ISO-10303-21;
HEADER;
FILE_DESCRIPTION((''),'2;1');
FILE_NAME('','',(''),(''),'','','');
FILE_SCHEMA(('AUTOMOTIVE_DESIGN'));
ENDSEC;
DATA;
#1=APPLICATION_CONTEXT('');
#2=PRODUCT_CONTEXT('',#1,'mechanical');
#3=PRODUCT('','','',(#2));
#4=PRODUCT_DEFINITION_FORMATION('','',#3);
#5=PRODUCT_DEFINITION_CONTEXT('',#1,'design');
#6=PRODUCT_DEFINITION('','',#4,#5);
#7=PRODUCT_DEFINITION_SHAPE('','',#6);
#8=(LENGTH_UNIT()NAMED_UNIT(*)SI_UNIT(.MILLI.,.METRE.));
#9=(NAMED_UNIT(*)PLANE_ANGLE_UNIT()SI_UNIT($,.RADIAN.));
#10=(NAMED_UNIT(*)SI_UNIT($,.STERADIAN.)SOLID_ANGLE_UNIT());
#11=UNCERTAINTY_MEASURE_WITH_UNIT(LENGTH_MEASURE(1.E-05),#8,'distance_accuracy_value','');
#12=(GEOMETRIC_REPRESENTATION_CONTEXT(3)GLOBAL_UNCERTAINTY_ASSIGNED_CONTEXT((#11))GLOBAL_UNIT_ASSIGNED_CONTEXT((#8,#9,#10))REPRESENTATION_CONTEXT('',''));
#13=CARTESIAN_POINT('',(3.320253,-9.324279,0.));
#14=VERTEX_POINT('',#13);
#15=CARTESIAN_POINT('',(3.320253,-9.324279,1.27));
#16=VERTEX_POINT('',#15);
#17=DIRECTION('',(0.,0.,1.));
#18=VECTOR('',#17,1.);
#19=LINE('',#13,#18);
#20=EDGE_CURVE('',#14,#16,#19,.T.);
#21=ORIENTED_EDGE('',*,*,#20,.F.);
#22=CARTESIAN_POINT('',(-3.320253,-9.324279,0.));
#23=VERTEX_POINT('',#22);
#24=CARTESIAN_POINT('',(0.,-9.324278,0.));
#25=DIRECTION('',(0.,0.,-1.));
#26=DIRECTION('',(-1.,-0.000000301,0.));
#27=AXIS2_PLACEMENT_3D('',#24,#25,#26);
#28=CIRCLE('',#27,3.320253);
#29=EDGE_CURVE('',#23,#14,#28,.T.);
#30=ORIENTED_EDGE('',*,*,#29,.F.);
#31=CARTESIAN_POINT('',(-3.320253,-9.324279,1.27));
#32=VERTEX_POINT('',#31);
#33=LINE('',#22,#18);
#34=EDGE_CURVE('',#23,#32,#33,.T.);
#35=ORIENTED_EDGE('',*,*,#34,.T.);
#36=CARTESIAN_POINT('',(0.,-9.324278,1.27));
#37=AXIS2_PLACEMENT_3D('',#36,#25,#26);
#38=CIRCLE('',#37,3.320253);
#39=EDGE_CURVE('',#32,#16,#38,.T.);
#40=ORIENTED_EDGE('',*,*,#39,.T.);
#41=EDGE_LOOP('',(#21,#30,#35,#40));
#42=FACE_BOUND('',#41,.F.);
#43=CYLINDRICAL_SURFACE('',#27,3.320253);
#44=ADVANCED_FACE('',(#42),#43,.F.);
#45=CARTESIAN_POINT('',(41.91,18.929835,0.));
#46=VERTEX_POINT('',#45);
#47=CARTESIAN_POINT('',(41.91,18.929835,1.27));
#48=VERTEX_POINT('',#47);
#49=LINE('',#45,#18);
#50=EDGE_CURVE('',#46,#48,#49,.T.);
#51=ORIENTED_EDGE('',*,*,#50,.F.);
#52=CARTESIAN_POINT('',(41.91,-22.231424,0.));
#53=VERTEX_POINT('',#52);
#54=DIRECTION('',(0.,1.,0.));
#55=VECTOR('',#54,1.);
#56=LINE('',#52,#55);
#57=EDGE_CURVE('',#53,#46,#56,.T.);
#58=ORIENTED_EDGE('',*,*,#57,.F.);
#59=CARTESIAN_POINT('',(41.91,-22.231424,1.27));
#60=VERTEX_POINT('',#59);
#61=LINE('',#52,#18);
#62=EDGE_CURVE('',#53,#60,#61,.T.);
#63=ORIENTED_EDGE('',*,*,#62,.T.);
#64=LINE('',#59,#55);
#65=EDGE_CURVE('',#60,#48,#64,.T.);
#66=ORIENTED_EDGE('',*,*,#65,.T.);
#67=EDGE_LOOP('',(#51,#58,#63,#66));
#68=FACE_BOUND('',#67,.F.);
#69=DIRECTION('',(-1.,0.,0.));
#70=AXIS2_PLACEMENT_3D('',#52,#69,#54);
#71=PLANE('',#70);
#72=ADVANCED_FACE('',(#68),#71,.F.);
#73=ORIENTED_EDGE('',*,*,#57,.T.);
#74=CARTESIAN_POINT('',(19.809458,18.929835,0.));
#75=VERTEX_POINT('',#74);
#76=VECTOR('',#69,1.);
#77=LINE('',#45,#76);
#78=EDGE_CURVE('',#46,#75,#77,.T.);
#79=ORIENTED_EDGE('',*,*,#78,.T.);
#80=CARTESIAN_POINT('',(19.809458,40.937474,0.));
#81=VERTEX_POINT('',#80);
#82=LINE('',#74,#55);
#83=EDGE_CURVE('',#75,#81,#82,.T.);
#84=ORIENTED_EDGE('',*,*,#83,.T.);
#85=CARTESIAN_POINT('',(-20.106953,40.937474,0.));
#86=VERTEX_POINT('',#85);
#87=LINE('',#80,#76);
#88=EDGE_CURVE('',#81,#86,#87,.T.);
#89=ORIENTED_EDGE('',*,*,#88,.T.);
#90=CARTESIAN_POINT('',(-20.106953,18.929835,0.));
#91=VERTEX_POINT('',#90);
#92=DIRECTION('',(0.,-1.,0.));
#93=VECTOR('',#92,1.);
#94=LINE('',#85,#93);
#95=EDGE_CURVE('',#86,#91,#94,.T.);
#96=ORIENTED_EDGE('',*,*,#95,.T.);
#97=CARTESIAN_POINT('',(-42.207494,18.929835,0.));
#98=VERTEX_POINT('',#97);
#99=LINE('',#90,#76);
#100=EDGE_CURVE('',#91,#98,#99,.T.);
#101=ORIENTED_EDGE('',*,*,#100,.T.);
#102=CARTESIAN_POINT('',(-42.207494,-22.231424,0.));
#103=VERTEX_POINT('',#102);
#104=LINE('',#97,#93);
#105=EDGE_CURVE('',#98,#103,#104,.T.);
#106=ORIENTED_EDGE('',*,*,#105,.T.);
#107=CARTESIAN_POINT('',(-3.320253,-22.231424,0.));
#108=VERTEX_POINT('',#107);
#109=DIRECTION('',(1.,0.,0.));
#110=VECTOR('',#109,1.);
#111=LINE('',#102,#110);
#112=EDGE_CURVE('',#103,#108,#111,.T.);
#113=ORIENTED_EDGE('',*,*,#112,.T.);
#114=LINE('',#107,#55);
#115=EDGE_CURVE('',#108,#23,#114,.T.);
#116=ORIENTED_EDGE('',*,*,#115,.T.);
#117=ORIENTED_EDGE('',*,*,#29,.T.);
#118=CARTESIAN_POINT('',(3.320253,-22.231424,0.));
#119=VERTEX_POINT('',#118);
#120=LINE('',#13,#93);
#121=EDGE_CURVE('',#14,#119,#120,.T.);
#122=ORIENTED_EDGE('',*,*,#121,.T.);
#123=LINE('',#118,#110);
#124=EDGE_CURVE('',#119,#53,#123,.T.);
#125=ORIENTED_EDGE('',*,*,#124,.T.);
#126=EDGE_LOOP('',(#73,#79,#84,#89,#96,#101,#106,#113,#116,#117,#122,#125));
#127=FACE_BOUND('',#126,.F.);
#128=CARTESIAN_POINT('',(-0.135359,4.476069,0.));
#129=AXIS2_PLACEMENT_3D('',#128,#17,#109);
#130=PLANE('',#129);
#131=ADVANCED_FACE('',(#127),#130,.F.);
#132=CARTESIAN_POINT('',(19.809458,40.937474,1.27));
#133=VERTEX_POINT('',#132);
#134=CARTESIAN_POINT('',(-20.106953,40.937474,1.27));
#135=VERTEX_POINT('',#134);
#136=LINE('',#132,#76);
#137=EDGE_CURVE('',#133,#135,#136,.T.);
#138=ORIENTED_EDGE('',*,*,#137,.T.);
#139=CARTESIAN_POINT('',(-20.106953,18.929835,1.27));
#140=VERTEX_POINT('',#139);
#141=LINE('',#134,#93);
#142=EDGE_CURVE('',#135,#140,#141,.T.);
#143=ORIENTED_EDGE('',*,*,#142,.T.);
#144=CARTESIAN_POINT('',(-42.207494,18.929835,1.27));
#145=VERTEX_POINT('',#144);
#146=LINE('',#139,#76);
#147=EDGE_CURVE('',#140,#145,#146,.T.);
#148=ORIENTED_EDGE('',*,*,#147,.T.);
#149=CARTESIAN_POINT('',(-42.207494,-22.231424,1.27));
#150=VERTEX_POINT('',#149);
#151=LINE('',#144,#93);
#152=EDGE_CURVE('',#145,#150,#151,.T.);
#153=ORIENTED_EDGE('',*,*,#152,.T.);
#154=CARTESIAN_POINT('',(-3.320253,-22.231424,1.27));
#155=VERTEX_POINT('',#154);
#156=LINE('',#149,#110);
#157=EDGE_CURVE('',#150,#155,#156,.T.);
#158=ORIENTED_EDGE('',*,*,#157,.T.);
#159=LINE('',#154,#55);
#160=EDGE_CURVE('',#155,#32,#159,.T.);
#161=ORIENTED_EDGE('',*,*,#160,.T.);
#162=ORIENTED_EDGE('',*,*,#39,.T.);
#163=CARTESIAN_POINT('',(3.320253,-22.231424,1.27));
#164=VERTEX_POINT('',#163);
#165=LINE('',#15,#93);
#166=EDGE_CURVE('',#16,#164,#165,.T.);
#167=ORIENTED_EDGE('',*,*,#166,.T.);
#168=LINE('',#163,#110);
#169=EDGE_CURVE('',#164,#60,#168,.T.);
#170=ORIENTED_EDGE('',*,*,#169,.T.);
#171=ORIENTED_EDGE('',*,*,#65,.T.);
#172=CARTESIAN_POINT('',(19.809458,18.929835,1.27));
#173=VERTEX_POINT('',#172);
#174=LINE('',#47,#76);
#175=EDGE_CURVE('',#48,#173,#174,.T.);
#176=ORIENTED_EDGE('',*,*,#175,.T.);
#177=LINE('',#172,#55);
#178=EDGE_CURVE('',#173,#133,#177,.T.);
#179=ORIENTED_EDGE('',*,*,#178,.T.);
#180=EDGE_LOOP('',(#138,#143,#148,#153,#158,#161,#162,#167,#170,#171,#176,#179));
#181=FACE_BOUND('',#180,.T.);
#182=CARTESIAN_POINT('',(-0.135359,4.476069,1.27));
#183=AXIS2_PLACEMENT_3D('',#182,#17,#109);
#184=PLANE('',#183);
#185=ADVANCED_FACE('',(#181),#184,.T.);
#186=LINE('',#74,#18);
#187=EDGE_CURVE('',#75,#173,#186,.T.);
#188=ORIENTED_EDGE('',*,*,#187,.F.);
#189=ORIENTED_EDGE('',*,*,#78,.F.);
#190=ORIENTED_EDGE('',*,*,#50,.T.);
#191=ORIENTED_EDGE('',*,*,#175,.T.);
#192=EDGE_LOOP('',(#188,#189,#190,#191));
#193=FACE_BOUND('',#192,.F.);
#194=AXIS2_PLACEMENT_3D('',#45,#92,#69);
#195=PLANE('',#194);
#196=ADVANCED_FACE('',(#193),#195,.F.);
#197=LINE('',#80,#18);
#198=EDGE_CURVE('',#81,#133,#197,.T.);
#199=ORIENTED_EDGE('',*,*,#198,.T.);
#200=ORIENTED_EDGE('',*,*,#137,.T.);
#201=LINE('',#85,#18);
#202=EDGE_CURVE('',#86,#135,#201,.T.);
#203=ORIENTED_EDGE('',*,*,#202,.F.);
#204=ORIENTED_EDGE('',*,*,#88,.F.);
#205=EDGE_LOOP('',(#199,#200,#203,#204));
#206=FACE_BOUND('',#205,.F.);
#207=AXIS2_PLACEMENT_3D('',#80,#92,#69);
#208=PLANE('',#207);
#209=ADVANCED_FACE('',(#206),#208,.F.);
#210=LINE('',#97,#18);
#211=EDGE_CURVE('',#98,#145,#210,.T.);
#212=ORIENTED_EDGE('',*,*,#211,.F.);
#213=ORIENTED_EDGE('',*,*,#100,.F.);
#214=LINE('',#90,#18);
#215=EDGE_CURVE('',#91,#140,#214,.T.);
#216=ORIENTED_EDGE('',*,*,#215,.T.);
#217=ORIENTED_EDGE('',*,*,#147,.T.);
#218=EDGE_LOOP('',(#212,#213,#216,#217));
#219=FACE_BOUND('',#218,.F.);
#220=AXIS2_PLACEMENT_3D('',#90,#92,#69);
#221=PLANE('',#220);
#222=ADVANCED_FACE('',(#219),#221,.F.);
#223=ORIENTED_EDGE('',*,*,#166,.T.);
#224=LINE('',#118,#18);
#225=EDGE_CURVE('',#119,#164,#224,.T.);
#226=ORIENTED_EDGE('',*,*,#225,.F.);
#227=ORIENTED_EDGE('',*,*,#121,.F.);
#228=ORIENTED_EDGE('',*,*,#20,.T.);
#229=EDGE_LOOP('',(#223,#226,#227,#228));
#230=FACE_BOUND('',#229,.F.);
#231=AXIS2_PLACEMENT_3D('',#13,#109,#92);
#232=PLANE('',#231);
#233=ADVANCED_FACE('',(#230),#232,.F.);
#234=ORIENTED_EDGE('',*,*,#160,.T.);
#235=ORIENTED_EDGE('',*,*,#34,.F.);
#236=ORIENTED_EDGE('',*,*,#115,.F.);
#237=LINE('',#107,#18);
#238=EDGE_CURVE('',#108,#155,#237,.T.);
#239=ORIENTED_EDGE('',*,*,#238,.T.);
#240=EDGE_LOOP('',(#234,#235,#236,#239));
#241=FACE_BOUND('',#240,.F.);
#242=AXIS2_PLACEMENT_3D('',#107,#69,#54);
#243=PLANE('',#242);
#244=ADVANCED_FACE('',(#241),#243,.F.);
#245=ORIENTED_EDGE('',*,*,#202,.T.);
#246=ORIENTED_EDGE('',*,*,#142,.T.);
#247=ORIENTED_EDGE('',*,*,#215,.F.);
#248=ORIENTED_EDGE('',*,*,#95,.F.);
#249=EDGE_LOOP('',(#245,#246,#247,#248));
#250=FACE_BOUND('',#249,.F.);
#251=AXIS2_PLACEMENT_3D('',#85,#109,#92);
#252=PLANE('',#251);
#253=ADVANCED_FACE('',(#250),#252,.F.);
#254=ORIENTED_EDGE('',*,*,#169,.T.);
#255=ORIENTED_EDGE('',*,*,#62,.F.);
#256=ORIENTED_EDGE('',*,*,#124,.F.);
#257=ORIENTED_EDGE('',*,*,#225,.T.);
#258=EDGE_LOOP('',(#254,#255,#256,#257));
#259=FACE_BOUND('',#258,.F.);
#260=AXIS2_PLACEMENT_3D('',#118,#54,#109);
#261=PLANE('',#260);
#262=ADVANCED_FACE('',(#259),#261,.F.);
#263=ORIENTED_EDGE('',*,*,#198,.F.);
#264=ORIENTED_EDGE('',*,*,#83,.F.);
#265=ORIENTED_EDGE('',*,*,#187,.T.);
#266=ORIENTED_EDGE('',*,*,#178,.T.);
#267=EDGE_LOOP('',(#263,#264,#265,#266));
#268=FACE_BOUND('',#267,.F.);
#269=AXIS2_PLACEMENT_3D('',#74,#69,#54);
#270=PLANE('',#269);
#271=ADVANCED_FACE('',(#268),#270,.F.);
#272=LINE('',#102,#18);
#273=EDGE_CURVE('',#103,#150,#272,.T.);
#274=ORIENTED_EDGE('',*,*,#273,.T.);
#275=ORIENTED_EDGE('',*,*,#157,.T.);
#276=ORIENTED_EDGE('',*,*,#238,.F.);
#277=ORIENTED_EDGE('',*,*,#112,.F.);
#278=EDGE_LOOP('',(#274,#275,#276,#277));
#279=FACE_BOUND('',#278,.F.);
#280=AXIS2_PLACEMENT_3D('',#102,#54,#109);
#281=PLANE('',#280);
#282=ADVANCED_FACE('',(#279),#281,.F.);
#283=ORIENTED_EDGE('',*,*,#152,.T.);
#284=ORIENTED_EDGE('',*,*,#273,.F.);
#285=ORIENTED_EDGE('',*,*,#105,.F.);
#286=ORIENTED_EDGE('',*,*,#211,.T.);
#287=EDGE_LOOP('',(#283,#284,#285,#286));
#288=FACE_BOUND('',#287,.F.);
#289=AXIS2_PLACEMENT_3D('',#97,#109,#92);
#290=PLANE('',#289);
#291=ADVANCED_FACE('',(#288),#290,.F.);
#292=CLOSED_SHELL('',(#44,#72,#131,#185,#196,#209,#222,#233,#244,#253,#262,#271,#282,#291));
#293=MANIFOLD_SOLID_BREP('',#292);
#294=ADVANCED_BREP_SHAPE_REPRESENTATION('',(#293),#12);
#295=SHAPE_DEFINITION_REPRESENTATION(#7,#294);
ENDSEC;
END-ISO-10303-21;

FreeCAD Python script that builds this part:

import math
import FreeCAD as App
import Part
import Sketcher

V = App.Vector
Q = App.Units.Quantity

doc = App.newDocument("Part")
body = doc.addObject("PartDesign::Body", "Body")

# Sketch on XY plane
sketch1 = body.newObject("Sketcher::SketchObject", "Sketch")
sketch1.AttachmentSupport = (doc.getObject("XY_Plane"), [""])
sketch1.MapMode = "FlatFace"
sketch1.addGeometry(Part.LineSegment(V(-42.2, 18.9, 0), V(-42.2, -22.2, 0)), False)
sketch1.addGeometry(Part.LineSegment(V(-42.2, -22.2, 0), V(-3.3, -22.2, 0)), False)
sketch1.addGeometry(Part.LineSegment(V(-3.3, -22.2, 0), V(-3.3, -9.3, 0)), False)
sketch1.addGeometry(Part.ArcOfCircle(Part.Circle(V(0, -9.3, 0), V(0, 0, 1), 3.3), math.radians(0), math.radians(180)), False)
sketch1.addGeometry(Part.LineSegment(V(3.3, -9.3, 0), V(3.3, -22.2, 0)), False)
sketch1.addGeometry(Part.LineSegment(V(3.3, -22.2, 0), V(41.9, -22.2, 0)), False)
sketch1.addGeometry(Part.LineSegment(V(41.9, -22.2, 0), V(41.9, 18.9, 0)), False)
sketch1.addGeometry(Part.LineSegment(V(41.9, 18.9, 0), V(19.8, 18.9, 0)), False)
sketch1.addGeometry(Part.LineSegment(V(19.8, 18.9, 0), V(19.8, 40.9, 0)), False)
sketch1.addGeometry(Part.LineSegment(V(19.8, 40.9, 0), V(-20.1, 40.9, 0)), False)
sketch1.addGeometry(Part.LineSegment(V(-20.1, 40.9, 0), V(-20.1, 18.9, 0)), False)
sketch1.addGeometry(Part.LineSegment(V(-20.1, 18.9, 0), V(-42.2, 18.9, 0)), False)
sketch1.addConstraint(Sketcher.Constraint("Coincident", 0, 2, 1, 1))
sketch1.addConstraint(Sketcher.Constraint("Coincident", 1, 2, 2, 1))
sketch1.addConstraint(Sketcher.Constraint("Tangent", 2, 2, 3, 2))
sketch1.addConstraint(Sketcher.Constraint("Tangent", 3, 1, 4, 1))
sketch1.addConstraint(Sketcher.Constraint("Coincident", 4, 2, 5, 1))
sketch1.addConstraint(Sketcher.Constraint("Coincident", 5, 2, 6, 1))
sketch1.addConstraint(Sketcher.Constraint("Coincident", 6, 2, 7, 1))
sketch1.addConstraint(Sketcher.Constraint("Coincident", 7, 2, 8, 1))
sketch1.addConstraint(Sketcher.Constraint("Coincident", 8, 2, 9, 1))
sketch1.addConstraint(Sketcher.Constraint("Coincident", 9, 2, 10, 1))
sketch1.addConstraint(Sketcher.Constraint("Coincident", 10, 2, 11, 1))
sketch1.addConstraint(Sketcher.Constraint("Coincident", 11, 2, 0, 1))
sketch1.addConstraint(Sketcher.Constraint("Vertical", 0))
sketch1.addConstraint(Sketcher.Constraint("Horizontal", 1))
sketch1.addConstraint(Sketcher.Constraint("Vertical", 2))
sketch1.addConstraint(Sketcher.Constraint("Vertical", 4))
sketch1.addConstraint(Sketcher.Constraint("Horizontal", 5))
sketch1.addConstraint(Sketcher.Constraint("Vertical", 6))
sketch1.addConstraint(Sketcher.Constraint("Horizontal", 7))
sketch1.addConstraint(Sketcher.Constraint("Vertical", 8))
sketch1.addConstraint(Sketcher.Constraint("Horizontal", 9))
sketch1.addConstraint(Sketcher.Constraint("Vertical", 10))
sketch1.addConstraint(Sketcher.Constraint("Horizontal", 11))
sketch1.addConstraint(Sketcher.Constraint("Symmetric", 1, 2, 4, 2, -2))
sketch1.addConstraint(Sketcher.Constraint("Horizontal", 7, 2, 10, 2))
sketch1.addConstraint(Sketcher.Constraint("Equal", 7, 11))
sketch1.addConstraint(Sketcher.Constraint("DistanceX", -1, 1, 5, 2, Q("1.65 in")))
sketch1.addConstraint(Sketcher.Constraint("DistanceX", 7, 2, 7, 1, Q("0.8701001 in")))
sketch1.addConstraint(Sketcher.Constraint("Radius", 3, 3.320253))
sketch1.addConstraint(Sketcher.Constraint("DistanceX", 1, 1, 1, 2, 38.887241))
sketch1.addConstraint(Sketcher.Constraint("DistanceY", 0, 2, 0, 1, 41.161259))
sketch1.addConstraint(Sketcher.Constraint("DistanceY", 8, 1, 8, 2, 22.007639))
sketch1.addConstraint(Sketcher.Constraint("DistanceY", 2, 1, 2, 2, 12.907145))
sketch1.addConstraint(Sketcher.Constraint("DistanceY", 2, 2, -1, 1, 9.324279))
pad1 = body.newObject("PartDesign::Pad", "Pad")
pad1.Profile = sketch1
pad1.Length = Q("0.05 in")

doc.recompute()
